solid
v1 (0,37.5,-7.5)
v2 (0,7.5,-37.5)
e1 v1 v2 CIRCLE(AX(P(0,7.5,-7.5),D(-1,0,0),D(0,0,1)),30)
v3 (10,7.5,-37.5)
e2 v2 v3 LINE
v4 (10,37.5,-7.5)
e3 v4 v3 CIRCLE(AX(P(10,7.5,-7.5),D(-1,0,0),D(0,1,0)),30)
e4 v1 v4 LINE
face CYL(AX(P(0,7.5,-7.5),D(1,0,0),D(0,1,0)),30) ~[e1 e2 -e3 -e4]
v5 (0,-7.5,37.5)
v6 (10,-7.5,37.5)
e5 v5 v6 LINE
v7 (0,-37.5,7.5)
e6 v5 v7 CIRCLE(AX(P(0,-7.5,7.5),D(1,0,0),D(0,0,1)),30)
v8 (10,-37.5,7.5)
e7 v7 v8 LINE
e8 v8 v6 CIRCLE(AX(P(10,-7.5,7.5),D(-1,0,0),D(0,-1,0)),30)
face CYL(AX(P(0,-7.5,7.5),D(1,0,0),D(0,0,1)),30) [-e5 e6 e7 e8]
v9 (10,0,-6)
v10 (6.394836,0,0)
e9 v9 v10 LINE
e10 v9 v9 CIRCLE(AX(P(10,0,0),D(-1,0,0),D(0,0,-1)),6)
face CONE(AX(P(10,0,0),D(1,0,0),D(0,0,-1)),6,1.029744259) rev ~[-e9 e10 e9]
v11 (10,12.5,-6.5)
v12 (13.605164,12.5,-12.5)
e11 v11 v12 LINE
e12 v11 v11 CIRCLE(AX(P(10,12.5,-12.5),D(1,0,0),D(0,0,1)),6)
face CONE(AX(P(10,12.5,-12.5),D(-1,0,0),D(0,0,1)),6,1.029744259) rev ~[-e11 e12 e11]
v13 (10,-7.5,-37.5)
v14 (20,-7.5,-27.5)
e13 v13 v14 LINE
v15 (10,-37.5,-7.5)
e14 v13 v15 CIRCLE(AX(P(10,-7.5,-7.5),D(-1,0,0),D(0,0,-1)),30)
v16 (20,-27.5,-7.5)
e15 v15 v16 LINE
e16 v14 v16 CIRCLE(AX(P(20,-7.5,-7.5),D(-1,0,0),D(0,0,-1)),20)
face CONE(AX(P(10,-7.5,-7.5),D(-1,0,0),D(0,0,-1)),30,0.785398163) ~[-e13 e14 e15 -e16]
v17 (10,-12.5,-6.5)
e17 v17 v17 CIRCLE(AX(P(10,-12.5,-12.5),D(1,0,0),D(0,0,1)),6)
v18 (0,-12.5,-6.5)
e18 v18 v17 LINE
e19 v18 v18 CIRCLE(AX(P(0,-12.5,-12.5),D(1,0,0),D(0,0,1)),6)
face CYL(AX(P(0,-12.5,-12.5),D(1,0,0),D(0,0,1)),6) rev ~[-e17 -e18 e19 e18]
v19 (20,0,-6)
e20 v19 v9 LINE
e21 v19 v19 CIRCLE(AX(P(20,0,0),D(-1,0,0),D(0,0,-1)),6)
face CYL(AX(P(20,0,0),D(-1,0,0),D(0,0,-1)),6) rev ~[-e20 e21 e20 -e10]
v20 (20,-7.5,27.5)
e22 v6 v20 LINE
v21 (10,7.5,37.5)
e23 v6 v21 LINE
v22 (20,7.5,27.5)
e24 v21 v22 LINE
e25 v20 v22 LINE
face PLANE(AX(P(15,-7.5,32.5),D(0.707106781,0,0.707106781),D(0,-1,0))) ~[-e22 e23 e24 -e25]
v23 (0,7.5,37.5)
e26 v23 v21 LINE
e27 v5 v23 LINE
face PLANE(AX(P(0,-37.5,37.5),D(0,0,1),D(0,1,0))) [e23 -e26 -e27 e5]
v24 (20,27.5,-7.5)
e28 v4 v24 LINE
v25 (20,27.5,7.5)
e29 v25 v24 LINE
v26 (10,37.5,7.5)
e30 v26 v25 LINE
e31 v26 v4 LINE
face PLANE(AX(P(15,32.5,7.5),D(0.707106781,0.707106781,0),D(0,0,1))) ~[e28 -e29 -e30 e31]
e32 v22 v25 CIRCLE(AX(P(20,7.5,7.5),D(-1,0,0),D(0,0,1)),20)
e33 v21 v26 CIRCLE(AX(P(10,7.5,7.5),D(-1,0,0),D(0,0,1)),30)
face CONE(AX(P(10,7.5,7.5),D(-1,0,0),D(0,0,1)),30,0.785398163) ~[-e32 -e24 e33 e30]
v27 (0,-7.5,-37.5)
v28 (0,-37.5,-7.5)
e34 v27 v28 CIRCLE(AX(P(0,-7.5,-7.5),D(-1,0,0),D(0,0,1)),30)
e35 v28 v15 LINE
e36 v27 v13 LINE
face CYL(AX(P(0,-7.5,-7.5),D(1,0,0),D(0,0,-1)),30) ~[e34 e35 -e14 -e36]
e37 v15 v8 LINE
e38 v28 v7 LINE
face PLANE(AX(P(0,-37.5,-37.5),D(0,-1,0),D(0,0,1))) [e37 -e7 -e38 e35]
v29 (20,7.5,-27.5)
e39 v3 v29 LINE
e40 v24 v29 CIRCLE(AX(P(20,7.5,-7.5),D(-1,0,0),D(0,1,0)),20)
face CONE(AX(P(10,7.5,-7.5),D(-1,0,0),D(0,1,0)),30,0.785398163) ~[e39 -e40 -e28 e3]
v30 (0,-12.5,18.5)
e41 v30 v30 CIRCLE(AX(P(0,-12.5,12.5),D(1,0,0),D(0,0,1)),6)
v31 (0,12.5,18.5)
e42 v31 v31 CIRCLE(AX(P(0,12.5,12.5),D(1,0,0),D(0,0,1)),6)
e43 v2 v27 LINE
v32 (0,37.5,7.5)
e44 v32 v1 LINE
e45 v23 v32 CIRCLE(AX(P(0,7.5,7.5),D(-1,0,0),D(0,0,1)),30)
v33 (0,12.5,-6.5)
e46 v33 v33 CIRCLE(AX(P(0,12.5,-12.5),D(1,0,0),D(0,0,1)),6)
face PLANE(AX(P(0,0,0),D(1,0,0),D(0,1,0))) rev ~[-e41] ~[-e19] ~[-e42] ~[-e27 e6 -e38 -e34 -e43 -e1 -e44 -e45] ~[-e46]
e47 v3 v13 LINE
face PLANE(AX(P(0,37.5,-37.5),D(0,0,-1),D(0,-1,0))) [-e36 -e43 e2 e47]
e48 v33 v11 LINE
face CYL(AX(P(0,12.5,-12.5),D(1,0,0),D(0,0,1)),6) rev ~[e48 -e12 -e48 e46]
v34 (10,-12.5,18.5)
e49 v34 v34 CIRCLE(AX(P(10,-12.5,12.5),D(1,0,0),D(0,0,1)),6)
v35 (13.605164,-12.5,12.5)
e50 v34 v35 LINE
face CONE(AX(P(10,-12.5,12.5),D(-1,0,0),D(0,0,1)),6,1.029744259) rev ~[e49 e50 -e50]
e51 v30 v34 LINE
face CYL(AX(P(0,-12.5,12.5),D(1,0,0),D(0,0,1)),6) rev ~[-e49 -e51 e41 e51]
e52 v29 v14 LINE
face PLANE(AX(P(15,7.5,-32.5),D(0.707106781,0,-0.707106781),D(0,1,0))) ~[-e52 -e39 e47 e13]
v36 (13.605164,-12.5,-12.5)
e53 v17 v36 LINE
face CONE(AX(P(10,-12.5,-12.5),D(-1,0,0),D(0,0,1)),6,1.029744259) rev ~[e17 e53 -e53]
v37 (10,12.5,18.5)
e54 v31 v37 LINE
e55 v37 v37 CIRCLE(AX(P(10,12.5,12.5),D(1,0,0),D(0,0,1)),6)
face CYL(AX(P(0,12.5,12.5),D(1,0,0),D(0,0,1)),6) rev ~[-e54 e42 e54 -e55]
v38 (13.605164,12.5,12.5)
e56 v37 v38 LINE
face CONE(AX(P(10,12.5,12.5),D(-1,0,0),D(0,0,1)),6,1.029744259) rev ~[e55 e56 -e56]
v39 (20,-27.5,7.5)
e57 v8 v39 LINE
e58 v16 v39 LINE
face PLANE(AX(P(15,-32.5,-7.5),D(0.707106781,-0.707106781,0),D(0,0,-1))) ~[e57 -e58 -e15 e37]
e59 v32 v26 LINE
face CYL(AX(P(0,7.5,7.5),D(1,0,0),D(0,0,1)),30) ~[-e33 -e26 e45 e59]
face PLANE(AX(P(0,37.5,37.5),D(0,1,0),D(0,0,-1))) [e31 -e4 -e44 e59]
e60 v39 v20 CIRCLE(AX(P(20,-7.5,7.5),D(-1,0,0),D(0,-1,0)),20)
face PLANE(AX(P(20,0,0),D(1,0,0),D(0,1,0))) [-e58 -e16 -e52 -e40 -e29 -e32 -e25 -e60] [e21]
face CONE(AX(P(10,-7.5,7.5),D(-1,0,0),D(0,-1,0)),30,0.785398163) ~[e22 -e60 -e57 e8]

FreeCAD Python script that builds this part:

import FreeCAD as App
import Part
import Sketcher

V = App.Vector


def edges_at(feature, points):
    """Names of the edges that pass closest to the given points."""
    edges = feature.Shape.Edges
    near = lambda p: min(range(len(edges)), key=lambda i: edges[i].distToShape(Part.Vertex(*p))[0])
    return sorted({f"Edge{near(p) + 1}" for p in points})


def add_polygon(sketch, points):
    """Adds a closed chain of lines whose ends are joined by coincident constraints."""
    first, n = sketch.GeometryCount, len(points)
    for a, b in zip(points, points[1:] + points[:1]):
        sketch.addGeometry(Part.LineSegment(App.Vector(*a, 0), App.Vector(*b, 0)), False)
    for i in range(n):
        sketch.addConstraint(Sketcher.Constraint("Coincident", first + i, 2, first + (i + 1) % n, 1))

doc = App.newDocument("Part")
params = doc.addObject("Spreadsheet::Sheet", "Params")
for row, (alias, value) in enumerate([
    ("sketch1_width", "75 mm"),
    ("pad1_length", "20 mm"),
    ("fillet_radius", "30 mm"),
    ("chamfer_size", "10 mm"),
    ("sketch2_diameter", "12 mm"),
    ("hole_diameter", "12 mm"),
    ("hole_depth", "10 mm"),
    ("sketch3_diameter", "12 mm"),
    ("hole2_diameter", "12 mm"),
    ("hole2_depth", "10 mm"),
], start=1):
    params.set(f"A{row}", alias)
    params.set(f"B{row}", "=" + value)
    params.setAlias(f"B{row}", alias)

body = doc.addObject("PartDesign::Body", "Body")

sketch1 = body.newObject("Sketcher::SketchObject", "Sketch")
sketch1.AttachmentSupport = (doc.getObject("YZ_Plane"), [""])
sketch1.MapMode = "FlatFace"
add_polygon(sketch1, [(38, 38), (-38, 38), (-38, -38), (38, -38)])
sketch1.addConstraint([
    Sketcher.Constraint("Horizontal", 0),
    Sketcher.Constraint("Vertical", 1),
    Sketcher.Constraint("Horizontal", 2),
    Sketcher.Constraint("Vertical", 3),
    Sketcher.Constraint("Symmetric", 0, 2, 2, 2, -1, 1),
    Sketcher.Constraint("Equal", 2, 1),
    Sketcher.Constraint("DistanceX", 0, 2, 0, 1, 75.0),
])
sketch1.setExpression("Constraints[10]", "Params.sketch1_width")
pad1 = body.newObject("PartDesign::Pad", "Pad")
pad1.Profile = sketch1
pad1.setExpression("Length", "Params.pad1_length")
doc.recompute()

fillet = body.newObject("PartDesign::Fillet", "Fillet")
fillet.Base = (pad1, edges_at(pad1, [
    (10, 37.5, 37.5),
    (10, -37.5, 37.5),
    (10, 37.5, -37.5),
    (10, -37.5, -37.5),
]))
fillet.setExpression("Radius", "Params.fillet_radius")
doc.recompute()

chamfer = body.newObject("PartDesign::Chamfer", "Chamfer")
chamfer.Base = (fillet, edges_at(fillet, [
    (20, 0, 37.5),
    (20, -28.713, 28.713),
    (20, -37.5, 0),
    (20, -28.713, -28.713),
    (20, 0, -37.5),
    (20, 28.713, -28.713),
    (20, 37.5, 0),
    (20, 28.713, 28.713),
]))
chamfer.setExpression("Size", "Params.chamfer_size")

sketch2 = body.newObject("Sketcher::SketchObject", "Sketch001")
sketch2.AttachmentSupport = (doc.getObject("YZ_Plane"), [""])
sketch2.MapMode = "FlatFace"
sketch2.AttachmentOffset = App.Placement(V(0, 0, 20), App.Rotation())
sketch2.addGeometry([
    Part.Circle(V(0, 0, 0), V(0, 0, 1), 6),
    Part.Circle(V(0, 0, 0), V(0, 0, 1), 6),
    Part.Circle(V(0, 0, 0), V(0, 0, 1), 6),
    Part.Circle(V(0, 0, 0), V(0, 0, 1), 6),
], False)
sketch2.addConstraint([
    Sketcher.Constraint("Coincident", 0, 3, -1, 1),
    Sketcher.Constraint("Coincident", 1, 3, -1, 1),
    Sketcher.Constraint("Coincident", 2, 3, -1, 1),
    Sketcher.Constraint("Coincident", 3, 3, -1, 1),
    Sketcher.Constraint("Equal", 0, 1),
    Sketcher.Constraint("Equal", 1, 2),
    Sketcher.Constraint("Equal", 2, 3),
    Sketcher.Constraint("Diameter", 0, 12.0),
])
sketch2.setExpression("Constraints[7]", "Params.sketch2_diameter")
doc.recompute()
hole = body.newObject("PartDesign::Hole", "Hole")
hole.Profile = sketch2
hole.ThreadType = "None"
hole.setExpression("Diameter", "Params.hole_diameter")
hole.DepthType = "Dimension"
hole.setExpression("Depth", "Params.hole_depth")
hole.DrillPoint = "Angled"
hole.DrillPointAngle = 118

sketch3 = body.newObject("Sketcher::SketchObject", "Sketch002")
sketch3.AttachmentSupport = (doc.getObject("YZ_Plane"), [""])
sketch3.MapMode = "FlatFace"
sketch3.addGeometry([
    Part.Circle(V(-12, 12, 0), V(0, 0, 1), 6),
    Part.Circle(V(-12, -12, 0), V(0, 0, 1), 6),
    Part.Circle(V(12, -12, 0), V(0, 0, 1), 6),
    Part.Circle(V(12, 12, 0), V(0, 0, 1), 6),
], False)
sketch3.addConstraint([
    Sketcher.Constraint("Equal", 0, 1),
    Sketcher.Constraint("Equal", 1, 2),
    Sketcher.Constraint("Equal", 2, 3),
    Sketcher.Constraint("Symmetric", 0, 3, 2, 3, -1, 1),
    Sketcher.Constraint("Symmetric", 1, 3, 3, 3, -1, 1),
    Sketcher.Constraint("Symmetric", 1, 3, 2, 3, -2),
    Sketcher.Constraint("Diameter", 0, 12.0),
    Sketcher.Constraint("DistanceY", 1, 3, 0, 3, 25.0),
    Sketcher.Constraint("DistanceX", 1, 3, 2, 3, 25.0),
])
sketch3.setExpression("Constraints[6]", "Params.sketch3_diameter")
doc.recompute()
hole2 = body.newObject("PartDesign::Hole", "Hole001")
hole2.Profile = sketch3
hole2.ThreadType = "None"
hole2.setExpression("Diameter", "Params.hole2_diameter")
hole2.DepthType = "Dimension"
hole2.setExpression("Depth", "Params.hole2_depth")
hole2.DrillPoint = "Angled"
hole2.DrillPointAngle = 118
hole2.Reversed = True

doc.recompute()
